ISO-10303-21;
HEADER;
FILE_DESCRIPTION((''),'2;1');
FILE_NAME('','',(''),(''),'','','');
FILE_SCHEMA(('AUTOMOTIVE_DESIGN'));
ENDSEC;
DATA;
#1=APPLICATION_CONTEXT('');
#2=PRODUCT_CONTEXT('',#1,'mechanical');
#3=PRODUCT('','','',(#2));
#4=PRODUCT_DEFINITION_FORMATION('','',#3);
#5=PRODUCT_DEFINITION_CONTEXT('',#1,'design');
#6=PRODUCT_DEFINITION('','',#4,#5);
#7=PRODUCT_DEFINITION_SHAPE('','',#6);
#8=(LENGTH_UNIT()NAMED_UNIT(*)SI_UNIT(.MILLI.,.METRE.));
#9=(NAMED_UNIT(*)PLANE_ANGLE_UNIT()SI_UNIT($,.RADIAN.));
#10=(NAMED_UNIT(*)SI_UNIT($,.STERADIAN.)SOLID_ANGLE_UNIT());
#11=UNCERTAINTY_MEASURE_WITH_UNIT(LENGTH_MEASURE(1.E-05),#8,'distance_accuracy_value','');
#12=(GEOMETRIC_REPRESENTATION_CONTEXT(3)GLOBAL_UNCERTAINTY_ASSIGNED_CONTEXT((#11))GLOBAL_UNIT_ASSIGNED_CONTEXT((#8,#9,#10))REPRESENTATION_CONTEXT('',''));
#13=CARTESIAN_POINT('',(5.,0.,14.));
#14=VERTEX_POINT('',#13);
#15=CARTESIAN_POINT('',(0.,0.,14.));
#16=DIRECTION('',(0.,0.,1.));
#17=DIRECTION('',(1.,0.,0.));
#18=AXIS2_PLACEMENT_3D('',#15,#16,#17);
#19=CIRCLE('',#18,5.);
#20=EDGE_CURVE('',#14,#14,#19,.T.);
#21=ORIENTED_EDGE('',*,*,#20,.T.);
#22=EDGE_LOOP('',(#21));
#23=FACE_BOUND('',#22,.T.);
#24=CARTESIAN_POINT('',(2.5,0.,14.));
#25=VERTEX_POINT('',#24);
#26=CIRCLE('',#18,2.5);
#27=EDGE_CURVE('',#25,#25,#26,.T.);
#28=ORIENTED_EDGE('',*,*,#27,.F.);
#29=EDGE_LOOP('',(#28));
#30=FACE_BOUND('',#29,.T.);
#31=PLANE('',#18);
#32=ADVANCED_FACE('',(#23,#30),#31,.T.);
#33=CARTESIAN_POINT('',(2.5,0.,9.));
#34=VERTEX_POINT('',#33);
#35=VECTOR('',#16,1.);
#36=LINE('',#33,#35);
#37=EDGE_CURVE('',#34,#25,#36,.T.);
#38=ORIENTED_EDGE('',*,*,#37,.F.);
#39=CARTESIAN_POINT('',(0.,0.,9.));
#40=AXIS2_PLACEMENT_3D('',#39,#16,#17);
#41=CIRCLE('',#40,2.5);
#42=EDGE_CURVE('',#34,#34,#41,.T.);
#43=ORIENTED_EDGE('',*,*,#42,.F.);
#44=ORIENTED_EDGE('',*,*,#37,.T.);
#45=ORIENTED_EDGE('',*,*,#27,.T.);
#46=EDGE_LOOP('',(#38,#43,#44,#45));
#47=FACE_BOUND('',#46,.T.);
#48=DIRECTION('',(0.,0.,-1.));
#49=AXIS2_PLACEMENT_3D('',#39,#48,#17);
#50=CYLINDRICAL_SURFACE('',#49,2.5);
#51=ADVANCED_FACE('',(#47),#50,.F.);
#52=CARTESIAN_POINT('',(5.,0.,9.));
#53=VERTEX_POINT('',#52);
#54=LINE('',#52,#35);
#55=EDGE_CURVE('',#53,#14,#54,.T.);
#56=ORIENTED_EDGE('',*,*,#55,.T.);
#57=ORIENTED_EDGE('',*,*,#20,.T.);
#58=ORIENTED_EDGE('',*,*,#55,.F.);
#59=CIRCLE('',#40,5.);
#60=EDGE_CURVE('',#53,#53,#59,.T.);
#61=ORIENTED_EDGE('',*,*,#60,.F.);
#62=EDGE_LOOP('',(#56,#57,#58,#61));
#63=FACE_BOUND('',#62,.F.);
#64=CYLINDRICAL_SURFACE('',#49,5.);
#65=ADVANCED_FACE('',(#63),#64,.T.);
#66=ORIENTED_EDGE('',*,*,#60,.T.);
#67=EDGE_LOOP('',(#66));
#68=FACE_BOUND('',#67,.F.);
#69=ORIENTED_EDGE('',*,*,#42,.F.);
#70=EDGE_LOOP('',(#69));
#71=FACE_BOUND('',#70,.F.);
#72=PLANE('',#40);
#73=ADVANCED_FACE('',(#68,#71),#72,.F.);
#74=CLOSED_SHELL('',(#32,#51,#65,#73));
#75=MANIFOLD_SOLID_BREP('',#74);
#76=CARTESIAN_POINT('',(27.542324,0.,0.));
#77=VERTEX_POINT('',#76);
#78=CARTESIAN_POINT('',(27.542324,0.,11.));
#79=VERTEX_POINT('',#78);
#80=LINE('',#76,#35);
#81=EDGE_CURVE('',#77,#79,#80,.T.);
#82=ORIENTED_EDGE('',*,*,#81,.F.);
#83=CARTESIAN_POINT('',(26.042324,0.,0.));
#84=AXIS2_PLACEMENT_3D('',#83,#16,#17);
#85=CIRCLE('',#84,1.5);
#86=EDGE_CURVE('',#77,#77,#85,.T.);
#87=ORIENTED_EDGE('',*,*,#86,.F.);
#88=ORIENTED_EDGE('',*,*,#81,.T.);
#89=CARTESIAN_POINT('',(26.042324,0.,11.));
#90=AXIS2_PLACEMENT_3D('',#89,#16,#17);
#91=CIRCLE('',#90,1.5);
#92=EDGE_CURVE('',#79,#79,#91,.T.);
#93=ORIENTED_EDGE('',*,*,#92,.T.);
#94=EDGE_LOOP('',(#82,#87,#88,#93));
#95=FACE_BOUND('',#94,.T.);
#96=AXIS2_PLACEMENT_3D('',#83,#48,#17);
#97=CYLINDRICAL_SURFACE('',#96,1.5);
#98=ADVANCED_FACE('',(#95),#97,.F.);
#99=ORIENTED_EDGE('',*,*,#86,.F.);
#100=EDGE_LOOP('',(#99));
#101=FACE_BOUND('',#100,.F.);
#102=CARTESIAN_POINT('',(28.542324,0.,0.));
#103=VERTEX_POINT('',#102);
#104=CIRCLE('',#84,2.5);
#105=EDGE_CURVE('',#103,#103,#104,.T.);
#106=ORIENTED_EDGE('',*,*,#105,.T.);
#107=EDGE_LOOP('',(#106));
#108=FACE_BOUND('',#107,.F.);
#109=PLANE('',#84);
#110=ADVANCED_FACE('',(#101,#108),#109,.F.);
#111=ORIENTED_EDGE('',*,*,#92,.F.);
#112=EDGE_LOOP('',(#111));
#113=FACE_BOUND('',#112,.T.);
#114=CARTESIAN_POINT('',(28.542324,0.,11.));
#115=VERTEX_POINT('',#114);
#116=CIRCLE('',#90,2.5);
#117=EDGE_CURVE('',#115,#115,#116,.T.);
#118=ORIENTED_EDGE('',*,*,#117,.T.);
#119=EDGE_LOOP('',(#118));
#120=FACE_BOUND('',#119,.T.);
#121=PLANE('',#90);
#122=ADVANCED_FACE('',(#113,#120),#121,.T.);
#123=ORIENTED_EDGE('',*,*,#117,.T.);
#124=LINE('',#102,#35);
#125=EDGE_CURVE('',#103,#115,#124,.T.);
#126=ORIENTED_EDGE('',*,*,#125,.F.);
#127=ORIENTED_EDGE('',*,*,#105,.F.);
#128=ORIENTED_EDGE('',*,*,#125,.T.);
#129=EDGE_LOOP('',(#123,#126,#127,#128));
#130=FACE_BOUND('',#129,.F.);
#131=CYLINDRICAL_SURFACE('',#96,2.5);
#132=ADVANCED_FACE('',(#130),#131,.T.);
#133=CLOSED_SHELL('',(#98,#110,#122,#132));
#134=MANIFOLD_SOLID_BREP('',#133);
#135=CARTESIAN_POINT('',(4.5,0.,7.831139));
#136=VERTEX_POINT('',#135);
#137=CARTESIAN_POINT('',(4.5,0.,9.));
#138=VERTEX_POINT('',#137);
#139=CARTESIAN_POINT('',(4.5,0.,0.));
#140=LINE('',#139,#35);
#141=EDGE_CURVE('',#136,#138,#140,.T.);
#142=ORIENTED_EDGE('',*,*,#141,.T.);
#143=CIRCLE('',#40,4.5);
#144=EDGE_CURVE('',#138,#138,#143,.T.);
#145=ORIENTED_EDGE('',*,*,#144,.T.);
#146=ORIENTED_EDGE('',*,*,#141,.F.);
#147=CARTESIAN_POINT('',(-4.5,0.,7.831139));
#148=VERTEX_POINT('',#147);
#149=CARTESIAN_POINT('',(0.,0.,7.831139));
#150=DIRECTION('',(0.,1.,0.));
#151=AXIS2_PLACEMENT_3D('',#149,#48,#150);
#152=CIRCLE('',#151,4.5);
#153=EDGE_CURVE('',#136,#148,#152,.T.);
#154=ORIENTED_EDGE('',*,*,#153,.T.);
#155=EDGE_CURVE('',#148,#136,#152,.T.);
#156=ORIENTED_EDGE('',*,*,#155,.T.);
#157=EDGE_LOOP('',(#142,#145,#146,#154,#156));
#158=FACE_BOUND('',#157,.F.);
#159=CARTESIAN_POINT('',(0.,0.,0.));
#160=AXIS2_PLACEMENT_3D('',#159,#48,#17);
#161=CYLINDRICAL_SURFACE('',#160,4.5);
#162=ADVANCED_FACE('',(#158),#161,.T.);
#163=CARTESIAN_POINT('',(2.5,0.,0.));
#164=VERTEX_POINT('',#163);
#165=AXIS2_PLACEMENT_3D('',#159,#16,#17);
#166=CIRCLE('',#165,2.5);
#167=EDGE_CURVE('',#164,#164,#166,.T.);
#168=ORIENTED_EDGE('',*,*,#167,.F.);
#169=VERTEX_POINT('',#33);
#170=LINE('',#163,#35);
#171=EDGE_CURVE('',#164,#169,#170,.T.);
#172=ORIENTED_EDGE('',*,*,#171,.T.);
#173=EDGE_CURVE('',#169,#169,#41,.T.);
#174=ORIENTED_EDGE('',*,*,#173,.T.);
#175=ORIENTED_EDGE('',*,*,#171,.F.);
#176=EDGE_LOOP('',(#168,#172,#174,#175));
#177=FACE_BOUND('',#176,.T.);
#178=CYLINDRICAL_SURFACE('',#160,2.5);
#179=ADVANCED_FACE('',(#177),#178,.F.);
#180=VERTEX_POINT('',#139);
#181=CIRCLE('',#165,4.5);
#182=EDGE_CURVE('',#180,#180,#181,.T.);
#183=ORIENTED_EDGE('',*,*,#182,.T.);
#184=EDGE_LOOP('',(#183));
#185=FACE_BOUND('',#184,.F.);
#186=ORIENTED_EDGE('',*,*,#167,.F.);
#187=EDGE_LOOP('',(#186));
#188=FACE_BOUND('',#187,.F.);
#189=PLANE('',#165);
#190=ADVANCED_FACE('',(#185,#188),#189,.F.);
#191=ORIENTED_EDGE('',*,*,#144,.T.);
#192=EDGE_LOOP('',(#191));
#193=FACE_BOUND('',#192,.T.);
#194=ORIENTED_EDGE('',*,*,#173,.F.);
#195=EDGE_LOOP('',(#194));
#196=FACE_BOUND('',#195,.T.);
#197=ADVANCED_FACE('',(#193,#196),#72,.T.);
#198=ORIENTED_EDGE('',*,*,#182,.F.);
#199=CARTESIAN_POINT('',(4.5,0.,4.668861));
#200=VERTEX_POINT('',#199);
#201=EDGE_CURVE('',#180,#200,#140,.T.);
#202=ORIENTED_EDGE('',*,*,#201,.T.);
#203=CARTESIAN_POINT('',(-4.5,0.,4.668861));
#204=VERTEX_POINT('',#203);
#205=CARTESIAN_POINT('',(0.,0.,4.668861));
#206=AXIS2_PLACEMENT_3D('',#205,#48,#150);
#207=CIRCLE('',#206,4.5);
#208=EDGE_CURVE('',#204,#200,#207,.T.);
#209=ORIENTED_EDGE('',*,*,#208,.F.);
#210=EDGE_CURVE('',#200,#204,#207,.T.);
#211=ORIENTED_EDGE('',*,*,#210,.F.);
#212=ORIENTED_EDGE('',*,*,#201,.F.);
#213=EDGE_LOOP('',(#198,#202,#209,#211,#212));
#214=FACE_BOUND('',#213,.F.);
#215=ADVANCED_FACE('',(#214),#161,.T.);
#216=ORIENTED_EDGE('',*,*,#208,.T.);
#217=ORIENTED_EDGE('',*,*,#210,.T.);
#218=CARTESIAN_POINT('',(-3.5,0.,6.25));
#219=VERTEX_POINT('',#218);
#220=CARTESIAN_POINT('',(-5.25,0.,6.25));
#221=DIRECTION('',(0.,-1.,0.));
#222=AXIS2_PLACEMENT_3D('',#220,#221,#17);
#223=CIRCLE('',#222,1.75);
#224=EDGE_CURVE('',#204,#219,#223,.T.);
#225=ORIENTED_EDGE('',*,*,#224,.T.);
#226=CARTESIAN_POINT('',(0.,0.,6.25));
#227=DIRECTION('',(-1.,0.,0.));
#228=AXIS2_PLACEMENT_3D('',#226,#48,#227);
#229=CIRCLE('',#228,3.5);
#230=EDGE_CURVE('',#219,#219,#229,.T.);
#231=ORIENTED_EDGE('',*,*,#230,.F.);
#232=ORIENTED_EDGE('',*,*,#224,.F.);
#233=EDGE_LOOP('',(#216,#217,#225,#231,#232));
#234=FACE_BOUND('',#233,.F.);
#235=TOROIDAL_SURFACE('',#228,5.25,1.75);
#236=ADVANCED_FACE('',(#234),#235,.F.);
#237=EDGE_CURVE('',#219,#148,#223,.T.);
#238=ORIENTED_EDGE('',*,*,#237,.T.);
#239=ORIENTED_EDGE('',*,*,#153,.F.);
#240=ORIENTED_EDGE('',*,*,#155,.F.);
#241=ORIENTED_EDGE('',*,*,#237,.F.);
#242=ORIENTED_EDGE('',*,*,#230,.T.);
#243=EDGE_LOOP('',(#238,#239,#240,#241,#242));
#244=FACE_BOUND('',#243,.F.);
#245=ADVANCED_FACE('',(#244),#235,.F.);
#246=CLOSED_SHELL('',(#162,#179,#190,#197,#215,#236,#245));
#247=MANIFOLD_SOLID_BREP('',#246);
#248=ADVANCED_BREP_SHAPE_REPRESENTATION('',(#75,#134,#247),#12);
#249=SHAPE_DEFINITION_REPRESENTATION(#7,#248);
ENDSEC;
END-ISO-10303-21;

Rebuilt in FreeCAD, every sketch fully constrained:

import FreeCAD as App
import Part
import Sketcher

V = App.Vector

doc = App.newDocument("Part")
body = doc.addObject("PartDesign::Body", "Body")

sketch1 = body.newObject("Sketcher::SketchObject", "Sketch")
sketch1.AttachmentSupport = (doc.getObject("XY_Plane"), [""])
sketch1.MapMode = "FlatFace"
sketch1.addGeometry([
    Part.Circle(V(0, 0, 0), V(0, 0, 1), 4.5),
    Part.Circle(V(0, 0, 0), V(0, 0, 1), 2.5),
], False)
sketch1.addConstraint([
    Sketcher.Constraint("Coincident", 0, 3, -1, 1),
    Sketcher.Constraint("Coincident", 1, 3, -1, 1),
    Sketcher.Constraint("Diameter", 0, 9.0),
    Sketcher.Constraint("Diameter", 1, 5.0),
])
pad1 = body.newObject("PartDesign::Pad", "Pad")
pad1.Profile = sketch1
pad1.Length = 9

sketch2 = body.newObject("Sketcher::SketchObject", "Sketch001")
sketch2.AttachmentSupport = (doc.getObject("XZ_Plane"), [""])
sketch2.MapMode = "FlatFace"
sketch2.addGeometry(Part.Circle(V(-5.2, 6.2, 0), V(0, 0, 1), 1.8), False)
sketch2.addConstraint([
    Sketcher.Constraint("Diameter", 0, 3.5),
    Sketcher.Constraint("DistanceX", 0, 3, -1, 1, 5.25),
    Sketcher.Constraint("DistanceY", -1, 1, 0, 3, 6.25),
])
groove = body.newObject("PartDesign::Groove", "Groove")
groove.Profile = sketch2
groove.ReferenceAxis = (sketch2, ["V_Axis"])
groove.Angle = 360
body2 = doc.addObject("PartDesign::Body", "Body001")

sketch3 = body2.newObject("Sketcher::SketchObject", "Sketch002")
sketch3.AttachmentSupport = (doc.getObject("XY_Plane001"), [""])
sketch3.MapMode = "FlatFace"
sketch3.AttachmentOffset = App.Placement(V(0, 0, 9), App.Rotation())
sketch3.addGeometry([
    Part.Circle(V(0, 0, 0), V(0, 0, 1), 5),
    Part.Circle(V(0, 0, 0), V(0, 0, 1), 2.5),
], False)
sketch3.addConstraint([
    Sketcher.Constraint("Coincident", 0, 3, -1, 1),
    Sketcher.Constraint("Coincident", 1, 3, -1, 1),
    Sketcher.Constraint("Diameter", 0, 10.0),
    Sketcher.Constraint("Diameter", 1, 5.0),
])
pad2 = body2.newObject("PartDesign::Pad", "Pad001")
pad2.Profile = sketch3
pad2.Length = 5
body3 = doc.addObject("PartDesign::Body", "Body002")

sketch4 = body3.newObject("Sketcher::SketchObject", "Sketch003")
sketch4.AttachmentSupport = (doc.getObject("XY_Plane002"), [""])
sketch4.MapMode = "FlatFace"
sketch4.addGeometry([
    Part.Circle(V(26, 0, 0), V(0, 0, 1), 2.5),
    Part.Circle(V(26, 0, 0), V(0, 0, 1), 1.5),
], False)
sketch4.addConstraint([
    Sketcher.Constraint("Coincident", 1, 3, 0, 3),
    Sketcher.Constraint("PointOnObject", 0, 3, -1),
    Sketcher.Constraint("Diameter", 0, 5.0),
    Sketcher.Constraint("Diameter", 1, 3.0),
    Sketcher.Constraint("DistanceX", -1, 1, 0, 3, 26.042324),
])
pad3 = body3.newObject("PartDesign::Pad", "Pad002")
pad3.Profile = sketch4
pad3.Length = 11

doc.recompute()
